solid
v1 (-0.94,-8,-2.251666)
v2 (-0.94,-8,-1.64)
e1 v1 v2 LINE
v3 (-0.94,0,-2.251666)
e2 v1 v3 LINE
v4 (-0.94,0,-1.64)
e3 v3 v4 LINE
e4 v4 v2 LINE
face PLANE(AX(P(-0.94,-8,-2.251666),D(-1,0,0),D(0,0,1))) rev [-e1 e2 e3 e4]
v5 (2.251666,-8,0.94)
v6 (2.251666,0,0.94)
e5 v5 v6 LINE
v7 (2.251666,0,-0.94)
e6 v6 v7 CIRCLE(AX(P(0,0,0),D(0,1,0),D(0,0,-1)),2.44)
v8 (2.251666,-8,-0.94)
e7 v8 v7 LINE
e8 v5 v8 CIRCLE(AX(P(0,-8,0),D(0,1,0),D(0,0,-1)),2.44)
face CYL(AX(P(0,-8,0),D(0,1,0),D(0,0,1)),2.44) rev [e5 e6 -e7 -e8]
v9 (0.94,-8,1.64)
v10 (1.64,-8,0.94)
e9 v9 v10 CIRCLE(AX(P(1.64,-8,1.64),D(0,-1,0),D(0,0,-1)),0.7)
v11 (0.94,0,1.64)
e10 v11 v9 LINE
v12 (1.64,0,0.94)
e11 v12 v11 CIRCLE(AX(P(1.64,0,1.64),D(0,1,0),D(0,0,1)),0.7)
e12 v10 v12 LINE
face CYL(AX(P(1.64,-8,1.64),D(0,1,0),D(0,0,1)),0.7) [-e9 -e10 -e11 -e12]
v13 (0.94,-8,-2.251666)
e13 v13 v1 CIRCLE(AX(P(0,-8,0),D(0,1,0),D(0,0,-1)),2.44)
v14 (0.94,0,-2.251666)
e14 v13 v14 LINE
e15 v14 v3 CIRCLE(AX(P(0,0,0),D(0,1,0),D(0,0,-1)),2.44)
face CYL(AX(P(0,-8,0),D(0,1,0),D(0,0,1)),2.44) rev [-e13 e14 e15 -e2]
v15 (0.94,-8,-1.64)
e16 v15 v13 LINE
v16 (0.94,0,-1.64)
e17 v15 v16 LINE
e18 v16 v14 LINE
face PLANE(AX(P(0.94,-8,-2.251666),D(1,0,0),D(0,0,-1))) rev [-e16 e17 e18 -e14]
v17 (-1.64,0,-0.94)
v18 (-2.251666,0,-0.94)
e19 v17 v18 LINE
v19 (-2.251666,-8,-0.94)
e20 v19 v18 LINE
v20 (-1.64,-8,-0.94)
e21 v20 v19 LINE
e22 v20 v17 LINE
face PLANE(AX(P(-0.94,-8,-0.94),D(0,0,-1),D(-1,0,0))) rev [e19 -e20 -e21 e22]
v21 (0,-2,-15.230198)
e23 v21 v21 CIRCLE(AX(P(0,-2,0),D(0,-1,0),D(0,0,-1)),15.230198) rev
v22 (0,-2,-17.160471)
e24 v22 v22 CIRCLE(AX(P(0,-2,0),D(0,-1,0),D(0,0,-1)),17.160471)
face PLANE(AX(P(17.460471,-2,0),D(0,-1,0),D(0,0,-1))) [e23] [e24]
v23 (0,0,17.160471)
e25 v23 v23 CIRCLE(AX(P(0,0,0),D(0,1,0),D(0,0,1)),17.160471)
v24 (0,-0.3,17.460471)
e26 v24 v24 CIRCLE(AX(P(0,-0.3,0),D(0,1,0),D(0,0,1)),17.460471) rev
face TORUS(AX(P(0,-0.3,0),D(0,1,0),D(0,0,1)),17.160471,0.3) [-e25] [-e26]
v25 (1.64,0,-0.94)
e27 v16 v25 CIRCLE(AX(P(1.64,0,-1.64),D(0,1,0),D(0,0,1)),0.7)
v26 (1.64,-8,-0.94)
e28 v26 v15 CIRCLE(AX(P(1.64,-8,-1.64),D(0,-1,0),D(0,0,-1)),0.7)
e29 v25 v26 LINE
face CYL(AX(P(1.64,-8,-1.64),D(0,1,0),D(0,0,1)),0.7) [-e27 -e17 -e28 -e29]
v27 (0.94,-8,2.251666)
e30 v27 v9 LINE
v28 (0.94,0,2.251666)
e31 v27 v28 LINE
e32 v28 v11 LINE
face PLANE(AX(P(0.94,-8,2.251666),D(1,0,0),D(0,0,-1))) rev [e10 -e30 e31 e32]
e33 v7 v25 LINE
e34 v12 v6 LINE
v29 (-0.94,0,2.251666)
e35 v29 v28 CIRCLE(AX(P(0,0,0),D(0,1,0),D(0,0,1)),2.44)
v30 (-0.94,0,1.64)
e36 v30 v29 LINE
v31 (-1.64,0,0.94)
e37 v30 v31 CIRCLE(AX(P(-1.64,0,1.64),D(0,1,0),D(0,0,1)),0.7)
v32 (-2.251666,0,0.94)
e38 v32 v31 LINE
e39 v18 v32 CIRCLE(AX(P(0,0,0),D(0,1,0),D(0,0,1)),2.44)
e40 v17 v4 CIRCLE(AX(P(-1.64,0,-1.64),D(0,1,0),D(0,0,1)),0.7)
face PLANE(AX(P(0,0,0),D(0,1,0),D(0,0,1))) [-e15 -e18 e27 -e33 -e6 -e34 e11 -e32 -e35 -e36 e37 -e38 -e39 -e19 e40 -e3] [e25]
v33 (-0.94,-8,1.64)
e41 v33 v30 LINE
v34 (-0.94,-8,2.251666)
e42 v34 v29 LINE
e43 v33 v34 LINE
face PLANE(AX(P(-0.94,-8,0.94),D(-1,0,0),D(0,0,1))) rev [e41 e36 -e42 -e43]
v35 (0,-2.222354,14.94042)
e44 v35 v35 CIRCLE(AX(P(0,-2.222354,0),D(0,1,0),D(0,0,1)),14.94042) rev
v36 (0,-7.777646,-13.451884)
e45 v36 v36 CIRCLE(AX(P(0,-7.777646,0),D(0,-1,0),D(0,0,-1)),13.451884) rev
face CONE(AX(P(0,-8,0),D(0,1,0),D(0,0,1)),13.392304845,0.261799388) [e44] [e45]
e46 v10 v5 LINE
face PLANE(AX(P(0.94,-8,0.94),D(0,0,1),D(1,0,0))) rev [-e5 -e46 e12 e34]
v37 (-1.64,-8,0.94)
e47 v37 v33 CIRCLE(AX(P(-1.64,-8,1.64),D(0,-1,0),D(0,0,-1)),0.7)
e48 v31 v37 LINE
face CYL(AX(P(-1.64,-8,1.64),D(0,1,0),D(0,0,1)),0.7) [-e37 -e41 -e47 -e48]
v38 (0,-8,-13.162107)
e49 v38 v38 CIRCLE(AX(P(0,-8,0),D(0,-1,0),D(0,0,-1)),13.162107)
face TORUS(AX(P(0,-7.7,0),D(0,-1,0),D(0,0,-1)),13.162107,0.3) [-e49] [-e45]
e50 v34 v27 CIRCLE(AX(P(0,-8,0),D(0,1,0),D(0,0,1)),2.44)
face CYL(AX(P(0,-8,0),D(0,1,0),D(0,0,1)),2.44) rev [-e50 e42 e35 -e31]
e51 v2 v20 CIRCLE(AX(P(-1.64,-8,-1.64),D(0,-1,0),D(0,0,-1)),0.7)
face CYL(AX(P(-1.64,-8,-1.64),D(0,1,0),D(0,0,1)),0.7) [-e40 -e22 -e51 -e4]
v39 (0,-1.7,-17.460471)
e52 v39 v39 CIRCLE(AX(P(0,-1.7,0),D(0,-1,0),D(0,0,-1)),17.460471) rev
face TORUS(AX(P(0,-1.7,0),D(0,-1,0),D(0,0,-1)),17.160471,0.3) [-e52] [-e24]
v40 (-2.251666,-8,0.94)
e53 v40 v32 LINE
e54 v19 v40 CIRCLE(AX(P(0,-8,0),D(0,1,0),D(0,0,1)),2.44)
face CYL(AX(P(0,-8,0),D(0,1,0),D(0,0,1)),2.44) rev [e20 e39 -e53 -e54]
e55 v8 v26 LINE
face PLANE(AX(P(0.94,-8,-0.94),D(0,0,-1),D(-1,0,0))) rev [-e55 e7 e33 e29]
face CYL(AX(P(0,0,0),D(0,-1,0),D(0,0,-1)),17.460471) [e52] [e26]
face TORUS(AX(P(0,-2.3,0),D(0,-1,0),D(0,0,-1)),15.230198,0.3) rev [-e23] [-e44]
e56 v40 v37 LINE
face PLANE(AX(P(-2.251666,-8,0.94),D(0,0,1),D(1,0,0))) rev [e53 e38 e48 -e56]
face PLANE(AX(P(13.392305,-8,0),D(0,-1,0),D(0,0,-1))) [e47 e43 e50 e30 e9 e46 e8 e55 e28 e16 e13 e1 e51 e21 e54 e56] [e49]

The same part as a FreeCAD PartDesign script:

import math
import FreeCAD as App
import Part
import Sketcher
from FreeCAD import Vector
Q = App.Units.Quantity


def edges_at(feature, points):
    """Names of the edges that pass closest to the given points."""
    edges = feature.Shape.Edges
    near = lambda p: min(range(len(edges)), key=lambda i: edges[i].distToShape(Part.Vertex(*p))[0])
    return sorted({f"Edge{near(p) + 1}" for p in points})

doc = App.newDocument("Part")
body = doc.addObject("PartDesign::Body", "Body")

# Sketch on XY plane
sketch1 = body.newObject("Sketcher::SketchObject", "Sketch")
sketch1.AttachmentSupport = (doc.getObject("XY_Plane"), [""])
sketch1.MapMode = "FlatFace"
sketch1.addGeometry(Part.LineSegment(Vector(17.5, 0, 0), Vector(0, 0, 0)), False)
sketch1.addGeometry(Part.LineSegment(Vector(0, 0, 0), Vector(0, -8, 0)), False)
sketch1.addGeometry(Part.LineSegment(Vector(0, -8, 0), Vector(13.4, -8, 0)), False)
sketch1.addGeometry(Part.LineSegment(Vector(13.4, -8, 0), Vector(15, -2, 0)), False)
sketch1.addGeometry(Part.LineSegment(Vector(15, -2, 0), Vector(17.5, -2, 0)), False)
sketch1.addGeometry(Part.LineSegment(Vector(17.5, -2, 0), Vector(17.5, 0, 0)), False)
sketch1.addConstraint(Sketcher.Constraint("Coincident", 0, 2, 1, 1))
sketch1.addConstraint(Sketcher.Constraint("Coincident", 1, 2, 2, 1))
sketch1.addConstraint(Sketcher.Constraint("Coincident", 2, 2, 3, 1))
sketch1.addConstraint(Sketcher.Constraint("Coincident", 3, 2, 4, 1))
sketch1.addConstraint(Sketcher.Constraint("Coincident", 4, 2, 5, 1))
sketch1.addConstraint(Sketcher.Constraint("Coincident", 5, 2, 0, 1))
sketch1.addConstraint(Sketcher.Constraint("Horizontal", 0))
sketch1.addConstraint(Sketcher.Constraint("Vertical", 1))
sketch1.addConstraint(Sketcher.Constraint("Horizontal", 2))
sketch1.addConstraint(Sketcher.Constraint("Horizontal", 4))
sketch1.addConstraint(Sketcher.Constraint("Vertical", 5))
sketch1.addConstraint(Sketcher.Constraint("Coincident", 0, 2, -1, 1))
sketch1.addConstraint(Sketcher.Constraint("DistanceY", 1, 2, 1, 1, 8.0))
sketch1.addConstraint(Sketcher.Constraint("DistanceY", 5, 1, 5, 2, 2.0))
sketch1.addConstraint(Sketcher.Constraint("Angle", 3, Q("75 deg")))
sketch1.addConstraint(Sketcher.Constraint("DistanceX", -1, 1, 3, 2, 15.0))
sketch1.addConstraint(Sketcher.Constraint("DistanceX", 0, 2, 0, 1, 17.460471))
revolution = body.newObject("PartDesign::Revolution", "Revolution")
revolution.Profile = sketch1
revolution.ReferenceAxis = (sketch1, ["V_Axis"])
revolution.Angle = 360

# Sketch on XZ plane
sketch2 = body.newObject("Sketcher::SketchObject", "Sketch001")
sketch2.AttachmentSupport = (doc.getObject("XZ_Plane"), [""])
sketch2.MapMode = "FlatFace"
sketch2.addGeometry(Part.LineSegment(Vector(-0.9, -0.9, 0), Vector(-2.3, -0.9, 0)), False)
sketch2.addGeometry(Part.ArcOfCircle(Part.Circle(Vector(0, 0, 0), Vector(0, 0, 1), 2.4), math.radians(157), math.radians(203)), False)
sketch2.addGeometry(Part.LineSegment(Vector(-2.3, 0.9, 0), Vector(-0.9, 0.9, 0)), False)
sketch2.addGeometry(Part.LineSegment(Vector(-0.9, 0.9, 0), Vector(-0.9, 2.3, 0)), False)
sketch2.addGeometry(Part.ArcOfCircle(Part.Circle(Vector(0, 0, 0), Vector(0, 0, 1), 2.4), math.radians(67), math.radians(113)), False)
sketch2.addGeometry(Part.LineSegment(Vector(0.9, 2.3, 0), Vector(0.9, 0.9, 0)), False)
sketch2.addGeometry(Part.LineSegment(Vector(0.9, 0.9, 0), Vector(2.3, 0.9, 0)), False)
sketch2.addGeometry(Part.ArcOfCircle(Part.Circle(Vector(0, 0, 0), Vector(0, 0, 1), 2.4), math.radians(-23), math.radians(23)), False)
sketch2.addGeometry(Part.LineSegment(Vector(2.3, -0.9, 0), Vector(0.9, -0.9, 0)), False)
sketch2.addGeometry(Part.LineSegment(Vector(0.9, -0.9, 0), Vector(0.9, -2.3, 0)), False)
sketch2.addGeometry(Part.ArcOfCircle(Part.Circle(Vector(0, 0, 0), Vector(0, 0, 1), 2.4), math.radians(-113), math.radians(-67)), False)
sketch2.addGeometry(Part.LineSegment(Vector(-0.9, -2.3, 0), Vector(-0.9, -0.9, 0)), False)
sketch2.addConstraint(Sketcher.Constraint("Coincident", 0, 2, 1, 2))
sketch2.addConstraint(Sketcher.Constraint("Coincident", 1, 1, 2, 1))
sketch2.addConstraint(Sketcher.Constraint("Coincident", 2, 2, 3, 1))
sketch2.addConstraint(Sketcher.Constraint("Coincident", 3, 2, 4, 2))
sketch2.addConstraint(Sketcher.Constraint("Coincident", 4, 1, 5, 1))
sketch2.addConstraint(Sketcher.Constraint("Coincident", 5, 2, 6, 1))
sketch2.addConstraint(Sketcher.Constraint("Coincident", 6, 2, 7, 2))
sketch2.addConstraint(Sketcher.Constraint("Coincident", 7, 1, 8, 1))
sketch2.addConstraint(Sketcher.Constraint("Coincident", 8, 2, 9, 1))
sketch2.addConstraint(Sketcher.Constraint("Coincident", 9, 2, 10, 2))
sketch2.addConstraint(Sketcher.Constraint("Coincident", 10, 1, 11, 1))
sketch2.addConstraint(Sketcher.Constraint("Coincident", 11, 2, 0, 1))
sketch2.addConstraint(Sketcher.Constraint("Horizontal", 0))
sketch2.addConstraint(Sketcher.Constraint("Horizontal", 2))
sketch2.addConstraint(Sketcher.Constraint("Vertical", 3))
sketch2.addConstraint(Sketcher.Constraint("Vertical", 5))
sketch2.addConstraint(Sketcher.Constraint("Horizontal", 6))
sketch2.addConstraint(Sketcher.Constraint("Horizontal", 8))
sketch2.addConstraint(Sketcher.Constraint("Vertical", 9))
sketch2.addConstraint(Sketcher.Constraint("Vertical", 11))
sketch2.addConstraint(Sketcher.Constraint("Coincident", 1, 3, -1, 1))
sketch2.addConstraint(Sketcher.Constraint("Coincident", 4, 3, -1, 1))
sketch2.addConstraint(Sketcher.Constraint("Coincident", 7, 3, -1, 1))
sketch2.addConstraint(Sketcher.Constraint("Coincident", 10, 3, -1, 1))
sketch2.addConstraint(Sketcher.Constraint("Equal", 1, 4))
sketch2.addConstraint(Sketcher.Constraint("Equal", 4, 7))
sketch2.addConstraint(Sketcher.Constraint("Equal", 7, 10))
sketch2.addConstraint(Sketcher.Constraint("Symmetric", 2, 2, 8, 2, -1, 1))
sketch2.addConstraint(Sketcher.Constraint("Symmetric", 5, 2, 11, 2, -1, 1))
sketch2.addConstraint(Sketcher.Constraint("Symmetric", 2, 2, 5, 2, -2))
sketch2.addConstraint(Sketcher.Constraint("Equal", 8, 3))
sketch2.addConstraint(Sketcher.Constraint("Radius", 1, 2.44))
sketch2.addConstraint(Sketcher.Constraint("DistanceY", 0, 2, -1, 1, 0.94))
pocket1 = body.newObject("PartDesign::Pocket", "Pocket")
pocket1.Profile = sketch2
pocket1.Type = "ThroughAll"
pocket1.Reversed = True
doc.recompute()

fillet = body.newObject("PartDesign::Fillet", "Fillet")
fillet.Base = (pocket1, edges_at(pocket1, [
    (-0.94, -4, -0.94),
    (0.94, -4, -0.94),
    (0.94, -4, 0.94),
    (-0.94, -4, 0.94),
]))
fillet.Radius = 0.7
doc.recompute()

fillet2 = body.newObject("PartDesign::Fillet", "Fillet001")
fillet2.Base = (fillet, edges_at(fillet, [
    (0, -8, 13.392),
    (0, -2, 15),
    (0, -2, 17.46),
    (0, 0, 17.46),
]))
fillet2.Radius = 0.3

doc.recompute()
